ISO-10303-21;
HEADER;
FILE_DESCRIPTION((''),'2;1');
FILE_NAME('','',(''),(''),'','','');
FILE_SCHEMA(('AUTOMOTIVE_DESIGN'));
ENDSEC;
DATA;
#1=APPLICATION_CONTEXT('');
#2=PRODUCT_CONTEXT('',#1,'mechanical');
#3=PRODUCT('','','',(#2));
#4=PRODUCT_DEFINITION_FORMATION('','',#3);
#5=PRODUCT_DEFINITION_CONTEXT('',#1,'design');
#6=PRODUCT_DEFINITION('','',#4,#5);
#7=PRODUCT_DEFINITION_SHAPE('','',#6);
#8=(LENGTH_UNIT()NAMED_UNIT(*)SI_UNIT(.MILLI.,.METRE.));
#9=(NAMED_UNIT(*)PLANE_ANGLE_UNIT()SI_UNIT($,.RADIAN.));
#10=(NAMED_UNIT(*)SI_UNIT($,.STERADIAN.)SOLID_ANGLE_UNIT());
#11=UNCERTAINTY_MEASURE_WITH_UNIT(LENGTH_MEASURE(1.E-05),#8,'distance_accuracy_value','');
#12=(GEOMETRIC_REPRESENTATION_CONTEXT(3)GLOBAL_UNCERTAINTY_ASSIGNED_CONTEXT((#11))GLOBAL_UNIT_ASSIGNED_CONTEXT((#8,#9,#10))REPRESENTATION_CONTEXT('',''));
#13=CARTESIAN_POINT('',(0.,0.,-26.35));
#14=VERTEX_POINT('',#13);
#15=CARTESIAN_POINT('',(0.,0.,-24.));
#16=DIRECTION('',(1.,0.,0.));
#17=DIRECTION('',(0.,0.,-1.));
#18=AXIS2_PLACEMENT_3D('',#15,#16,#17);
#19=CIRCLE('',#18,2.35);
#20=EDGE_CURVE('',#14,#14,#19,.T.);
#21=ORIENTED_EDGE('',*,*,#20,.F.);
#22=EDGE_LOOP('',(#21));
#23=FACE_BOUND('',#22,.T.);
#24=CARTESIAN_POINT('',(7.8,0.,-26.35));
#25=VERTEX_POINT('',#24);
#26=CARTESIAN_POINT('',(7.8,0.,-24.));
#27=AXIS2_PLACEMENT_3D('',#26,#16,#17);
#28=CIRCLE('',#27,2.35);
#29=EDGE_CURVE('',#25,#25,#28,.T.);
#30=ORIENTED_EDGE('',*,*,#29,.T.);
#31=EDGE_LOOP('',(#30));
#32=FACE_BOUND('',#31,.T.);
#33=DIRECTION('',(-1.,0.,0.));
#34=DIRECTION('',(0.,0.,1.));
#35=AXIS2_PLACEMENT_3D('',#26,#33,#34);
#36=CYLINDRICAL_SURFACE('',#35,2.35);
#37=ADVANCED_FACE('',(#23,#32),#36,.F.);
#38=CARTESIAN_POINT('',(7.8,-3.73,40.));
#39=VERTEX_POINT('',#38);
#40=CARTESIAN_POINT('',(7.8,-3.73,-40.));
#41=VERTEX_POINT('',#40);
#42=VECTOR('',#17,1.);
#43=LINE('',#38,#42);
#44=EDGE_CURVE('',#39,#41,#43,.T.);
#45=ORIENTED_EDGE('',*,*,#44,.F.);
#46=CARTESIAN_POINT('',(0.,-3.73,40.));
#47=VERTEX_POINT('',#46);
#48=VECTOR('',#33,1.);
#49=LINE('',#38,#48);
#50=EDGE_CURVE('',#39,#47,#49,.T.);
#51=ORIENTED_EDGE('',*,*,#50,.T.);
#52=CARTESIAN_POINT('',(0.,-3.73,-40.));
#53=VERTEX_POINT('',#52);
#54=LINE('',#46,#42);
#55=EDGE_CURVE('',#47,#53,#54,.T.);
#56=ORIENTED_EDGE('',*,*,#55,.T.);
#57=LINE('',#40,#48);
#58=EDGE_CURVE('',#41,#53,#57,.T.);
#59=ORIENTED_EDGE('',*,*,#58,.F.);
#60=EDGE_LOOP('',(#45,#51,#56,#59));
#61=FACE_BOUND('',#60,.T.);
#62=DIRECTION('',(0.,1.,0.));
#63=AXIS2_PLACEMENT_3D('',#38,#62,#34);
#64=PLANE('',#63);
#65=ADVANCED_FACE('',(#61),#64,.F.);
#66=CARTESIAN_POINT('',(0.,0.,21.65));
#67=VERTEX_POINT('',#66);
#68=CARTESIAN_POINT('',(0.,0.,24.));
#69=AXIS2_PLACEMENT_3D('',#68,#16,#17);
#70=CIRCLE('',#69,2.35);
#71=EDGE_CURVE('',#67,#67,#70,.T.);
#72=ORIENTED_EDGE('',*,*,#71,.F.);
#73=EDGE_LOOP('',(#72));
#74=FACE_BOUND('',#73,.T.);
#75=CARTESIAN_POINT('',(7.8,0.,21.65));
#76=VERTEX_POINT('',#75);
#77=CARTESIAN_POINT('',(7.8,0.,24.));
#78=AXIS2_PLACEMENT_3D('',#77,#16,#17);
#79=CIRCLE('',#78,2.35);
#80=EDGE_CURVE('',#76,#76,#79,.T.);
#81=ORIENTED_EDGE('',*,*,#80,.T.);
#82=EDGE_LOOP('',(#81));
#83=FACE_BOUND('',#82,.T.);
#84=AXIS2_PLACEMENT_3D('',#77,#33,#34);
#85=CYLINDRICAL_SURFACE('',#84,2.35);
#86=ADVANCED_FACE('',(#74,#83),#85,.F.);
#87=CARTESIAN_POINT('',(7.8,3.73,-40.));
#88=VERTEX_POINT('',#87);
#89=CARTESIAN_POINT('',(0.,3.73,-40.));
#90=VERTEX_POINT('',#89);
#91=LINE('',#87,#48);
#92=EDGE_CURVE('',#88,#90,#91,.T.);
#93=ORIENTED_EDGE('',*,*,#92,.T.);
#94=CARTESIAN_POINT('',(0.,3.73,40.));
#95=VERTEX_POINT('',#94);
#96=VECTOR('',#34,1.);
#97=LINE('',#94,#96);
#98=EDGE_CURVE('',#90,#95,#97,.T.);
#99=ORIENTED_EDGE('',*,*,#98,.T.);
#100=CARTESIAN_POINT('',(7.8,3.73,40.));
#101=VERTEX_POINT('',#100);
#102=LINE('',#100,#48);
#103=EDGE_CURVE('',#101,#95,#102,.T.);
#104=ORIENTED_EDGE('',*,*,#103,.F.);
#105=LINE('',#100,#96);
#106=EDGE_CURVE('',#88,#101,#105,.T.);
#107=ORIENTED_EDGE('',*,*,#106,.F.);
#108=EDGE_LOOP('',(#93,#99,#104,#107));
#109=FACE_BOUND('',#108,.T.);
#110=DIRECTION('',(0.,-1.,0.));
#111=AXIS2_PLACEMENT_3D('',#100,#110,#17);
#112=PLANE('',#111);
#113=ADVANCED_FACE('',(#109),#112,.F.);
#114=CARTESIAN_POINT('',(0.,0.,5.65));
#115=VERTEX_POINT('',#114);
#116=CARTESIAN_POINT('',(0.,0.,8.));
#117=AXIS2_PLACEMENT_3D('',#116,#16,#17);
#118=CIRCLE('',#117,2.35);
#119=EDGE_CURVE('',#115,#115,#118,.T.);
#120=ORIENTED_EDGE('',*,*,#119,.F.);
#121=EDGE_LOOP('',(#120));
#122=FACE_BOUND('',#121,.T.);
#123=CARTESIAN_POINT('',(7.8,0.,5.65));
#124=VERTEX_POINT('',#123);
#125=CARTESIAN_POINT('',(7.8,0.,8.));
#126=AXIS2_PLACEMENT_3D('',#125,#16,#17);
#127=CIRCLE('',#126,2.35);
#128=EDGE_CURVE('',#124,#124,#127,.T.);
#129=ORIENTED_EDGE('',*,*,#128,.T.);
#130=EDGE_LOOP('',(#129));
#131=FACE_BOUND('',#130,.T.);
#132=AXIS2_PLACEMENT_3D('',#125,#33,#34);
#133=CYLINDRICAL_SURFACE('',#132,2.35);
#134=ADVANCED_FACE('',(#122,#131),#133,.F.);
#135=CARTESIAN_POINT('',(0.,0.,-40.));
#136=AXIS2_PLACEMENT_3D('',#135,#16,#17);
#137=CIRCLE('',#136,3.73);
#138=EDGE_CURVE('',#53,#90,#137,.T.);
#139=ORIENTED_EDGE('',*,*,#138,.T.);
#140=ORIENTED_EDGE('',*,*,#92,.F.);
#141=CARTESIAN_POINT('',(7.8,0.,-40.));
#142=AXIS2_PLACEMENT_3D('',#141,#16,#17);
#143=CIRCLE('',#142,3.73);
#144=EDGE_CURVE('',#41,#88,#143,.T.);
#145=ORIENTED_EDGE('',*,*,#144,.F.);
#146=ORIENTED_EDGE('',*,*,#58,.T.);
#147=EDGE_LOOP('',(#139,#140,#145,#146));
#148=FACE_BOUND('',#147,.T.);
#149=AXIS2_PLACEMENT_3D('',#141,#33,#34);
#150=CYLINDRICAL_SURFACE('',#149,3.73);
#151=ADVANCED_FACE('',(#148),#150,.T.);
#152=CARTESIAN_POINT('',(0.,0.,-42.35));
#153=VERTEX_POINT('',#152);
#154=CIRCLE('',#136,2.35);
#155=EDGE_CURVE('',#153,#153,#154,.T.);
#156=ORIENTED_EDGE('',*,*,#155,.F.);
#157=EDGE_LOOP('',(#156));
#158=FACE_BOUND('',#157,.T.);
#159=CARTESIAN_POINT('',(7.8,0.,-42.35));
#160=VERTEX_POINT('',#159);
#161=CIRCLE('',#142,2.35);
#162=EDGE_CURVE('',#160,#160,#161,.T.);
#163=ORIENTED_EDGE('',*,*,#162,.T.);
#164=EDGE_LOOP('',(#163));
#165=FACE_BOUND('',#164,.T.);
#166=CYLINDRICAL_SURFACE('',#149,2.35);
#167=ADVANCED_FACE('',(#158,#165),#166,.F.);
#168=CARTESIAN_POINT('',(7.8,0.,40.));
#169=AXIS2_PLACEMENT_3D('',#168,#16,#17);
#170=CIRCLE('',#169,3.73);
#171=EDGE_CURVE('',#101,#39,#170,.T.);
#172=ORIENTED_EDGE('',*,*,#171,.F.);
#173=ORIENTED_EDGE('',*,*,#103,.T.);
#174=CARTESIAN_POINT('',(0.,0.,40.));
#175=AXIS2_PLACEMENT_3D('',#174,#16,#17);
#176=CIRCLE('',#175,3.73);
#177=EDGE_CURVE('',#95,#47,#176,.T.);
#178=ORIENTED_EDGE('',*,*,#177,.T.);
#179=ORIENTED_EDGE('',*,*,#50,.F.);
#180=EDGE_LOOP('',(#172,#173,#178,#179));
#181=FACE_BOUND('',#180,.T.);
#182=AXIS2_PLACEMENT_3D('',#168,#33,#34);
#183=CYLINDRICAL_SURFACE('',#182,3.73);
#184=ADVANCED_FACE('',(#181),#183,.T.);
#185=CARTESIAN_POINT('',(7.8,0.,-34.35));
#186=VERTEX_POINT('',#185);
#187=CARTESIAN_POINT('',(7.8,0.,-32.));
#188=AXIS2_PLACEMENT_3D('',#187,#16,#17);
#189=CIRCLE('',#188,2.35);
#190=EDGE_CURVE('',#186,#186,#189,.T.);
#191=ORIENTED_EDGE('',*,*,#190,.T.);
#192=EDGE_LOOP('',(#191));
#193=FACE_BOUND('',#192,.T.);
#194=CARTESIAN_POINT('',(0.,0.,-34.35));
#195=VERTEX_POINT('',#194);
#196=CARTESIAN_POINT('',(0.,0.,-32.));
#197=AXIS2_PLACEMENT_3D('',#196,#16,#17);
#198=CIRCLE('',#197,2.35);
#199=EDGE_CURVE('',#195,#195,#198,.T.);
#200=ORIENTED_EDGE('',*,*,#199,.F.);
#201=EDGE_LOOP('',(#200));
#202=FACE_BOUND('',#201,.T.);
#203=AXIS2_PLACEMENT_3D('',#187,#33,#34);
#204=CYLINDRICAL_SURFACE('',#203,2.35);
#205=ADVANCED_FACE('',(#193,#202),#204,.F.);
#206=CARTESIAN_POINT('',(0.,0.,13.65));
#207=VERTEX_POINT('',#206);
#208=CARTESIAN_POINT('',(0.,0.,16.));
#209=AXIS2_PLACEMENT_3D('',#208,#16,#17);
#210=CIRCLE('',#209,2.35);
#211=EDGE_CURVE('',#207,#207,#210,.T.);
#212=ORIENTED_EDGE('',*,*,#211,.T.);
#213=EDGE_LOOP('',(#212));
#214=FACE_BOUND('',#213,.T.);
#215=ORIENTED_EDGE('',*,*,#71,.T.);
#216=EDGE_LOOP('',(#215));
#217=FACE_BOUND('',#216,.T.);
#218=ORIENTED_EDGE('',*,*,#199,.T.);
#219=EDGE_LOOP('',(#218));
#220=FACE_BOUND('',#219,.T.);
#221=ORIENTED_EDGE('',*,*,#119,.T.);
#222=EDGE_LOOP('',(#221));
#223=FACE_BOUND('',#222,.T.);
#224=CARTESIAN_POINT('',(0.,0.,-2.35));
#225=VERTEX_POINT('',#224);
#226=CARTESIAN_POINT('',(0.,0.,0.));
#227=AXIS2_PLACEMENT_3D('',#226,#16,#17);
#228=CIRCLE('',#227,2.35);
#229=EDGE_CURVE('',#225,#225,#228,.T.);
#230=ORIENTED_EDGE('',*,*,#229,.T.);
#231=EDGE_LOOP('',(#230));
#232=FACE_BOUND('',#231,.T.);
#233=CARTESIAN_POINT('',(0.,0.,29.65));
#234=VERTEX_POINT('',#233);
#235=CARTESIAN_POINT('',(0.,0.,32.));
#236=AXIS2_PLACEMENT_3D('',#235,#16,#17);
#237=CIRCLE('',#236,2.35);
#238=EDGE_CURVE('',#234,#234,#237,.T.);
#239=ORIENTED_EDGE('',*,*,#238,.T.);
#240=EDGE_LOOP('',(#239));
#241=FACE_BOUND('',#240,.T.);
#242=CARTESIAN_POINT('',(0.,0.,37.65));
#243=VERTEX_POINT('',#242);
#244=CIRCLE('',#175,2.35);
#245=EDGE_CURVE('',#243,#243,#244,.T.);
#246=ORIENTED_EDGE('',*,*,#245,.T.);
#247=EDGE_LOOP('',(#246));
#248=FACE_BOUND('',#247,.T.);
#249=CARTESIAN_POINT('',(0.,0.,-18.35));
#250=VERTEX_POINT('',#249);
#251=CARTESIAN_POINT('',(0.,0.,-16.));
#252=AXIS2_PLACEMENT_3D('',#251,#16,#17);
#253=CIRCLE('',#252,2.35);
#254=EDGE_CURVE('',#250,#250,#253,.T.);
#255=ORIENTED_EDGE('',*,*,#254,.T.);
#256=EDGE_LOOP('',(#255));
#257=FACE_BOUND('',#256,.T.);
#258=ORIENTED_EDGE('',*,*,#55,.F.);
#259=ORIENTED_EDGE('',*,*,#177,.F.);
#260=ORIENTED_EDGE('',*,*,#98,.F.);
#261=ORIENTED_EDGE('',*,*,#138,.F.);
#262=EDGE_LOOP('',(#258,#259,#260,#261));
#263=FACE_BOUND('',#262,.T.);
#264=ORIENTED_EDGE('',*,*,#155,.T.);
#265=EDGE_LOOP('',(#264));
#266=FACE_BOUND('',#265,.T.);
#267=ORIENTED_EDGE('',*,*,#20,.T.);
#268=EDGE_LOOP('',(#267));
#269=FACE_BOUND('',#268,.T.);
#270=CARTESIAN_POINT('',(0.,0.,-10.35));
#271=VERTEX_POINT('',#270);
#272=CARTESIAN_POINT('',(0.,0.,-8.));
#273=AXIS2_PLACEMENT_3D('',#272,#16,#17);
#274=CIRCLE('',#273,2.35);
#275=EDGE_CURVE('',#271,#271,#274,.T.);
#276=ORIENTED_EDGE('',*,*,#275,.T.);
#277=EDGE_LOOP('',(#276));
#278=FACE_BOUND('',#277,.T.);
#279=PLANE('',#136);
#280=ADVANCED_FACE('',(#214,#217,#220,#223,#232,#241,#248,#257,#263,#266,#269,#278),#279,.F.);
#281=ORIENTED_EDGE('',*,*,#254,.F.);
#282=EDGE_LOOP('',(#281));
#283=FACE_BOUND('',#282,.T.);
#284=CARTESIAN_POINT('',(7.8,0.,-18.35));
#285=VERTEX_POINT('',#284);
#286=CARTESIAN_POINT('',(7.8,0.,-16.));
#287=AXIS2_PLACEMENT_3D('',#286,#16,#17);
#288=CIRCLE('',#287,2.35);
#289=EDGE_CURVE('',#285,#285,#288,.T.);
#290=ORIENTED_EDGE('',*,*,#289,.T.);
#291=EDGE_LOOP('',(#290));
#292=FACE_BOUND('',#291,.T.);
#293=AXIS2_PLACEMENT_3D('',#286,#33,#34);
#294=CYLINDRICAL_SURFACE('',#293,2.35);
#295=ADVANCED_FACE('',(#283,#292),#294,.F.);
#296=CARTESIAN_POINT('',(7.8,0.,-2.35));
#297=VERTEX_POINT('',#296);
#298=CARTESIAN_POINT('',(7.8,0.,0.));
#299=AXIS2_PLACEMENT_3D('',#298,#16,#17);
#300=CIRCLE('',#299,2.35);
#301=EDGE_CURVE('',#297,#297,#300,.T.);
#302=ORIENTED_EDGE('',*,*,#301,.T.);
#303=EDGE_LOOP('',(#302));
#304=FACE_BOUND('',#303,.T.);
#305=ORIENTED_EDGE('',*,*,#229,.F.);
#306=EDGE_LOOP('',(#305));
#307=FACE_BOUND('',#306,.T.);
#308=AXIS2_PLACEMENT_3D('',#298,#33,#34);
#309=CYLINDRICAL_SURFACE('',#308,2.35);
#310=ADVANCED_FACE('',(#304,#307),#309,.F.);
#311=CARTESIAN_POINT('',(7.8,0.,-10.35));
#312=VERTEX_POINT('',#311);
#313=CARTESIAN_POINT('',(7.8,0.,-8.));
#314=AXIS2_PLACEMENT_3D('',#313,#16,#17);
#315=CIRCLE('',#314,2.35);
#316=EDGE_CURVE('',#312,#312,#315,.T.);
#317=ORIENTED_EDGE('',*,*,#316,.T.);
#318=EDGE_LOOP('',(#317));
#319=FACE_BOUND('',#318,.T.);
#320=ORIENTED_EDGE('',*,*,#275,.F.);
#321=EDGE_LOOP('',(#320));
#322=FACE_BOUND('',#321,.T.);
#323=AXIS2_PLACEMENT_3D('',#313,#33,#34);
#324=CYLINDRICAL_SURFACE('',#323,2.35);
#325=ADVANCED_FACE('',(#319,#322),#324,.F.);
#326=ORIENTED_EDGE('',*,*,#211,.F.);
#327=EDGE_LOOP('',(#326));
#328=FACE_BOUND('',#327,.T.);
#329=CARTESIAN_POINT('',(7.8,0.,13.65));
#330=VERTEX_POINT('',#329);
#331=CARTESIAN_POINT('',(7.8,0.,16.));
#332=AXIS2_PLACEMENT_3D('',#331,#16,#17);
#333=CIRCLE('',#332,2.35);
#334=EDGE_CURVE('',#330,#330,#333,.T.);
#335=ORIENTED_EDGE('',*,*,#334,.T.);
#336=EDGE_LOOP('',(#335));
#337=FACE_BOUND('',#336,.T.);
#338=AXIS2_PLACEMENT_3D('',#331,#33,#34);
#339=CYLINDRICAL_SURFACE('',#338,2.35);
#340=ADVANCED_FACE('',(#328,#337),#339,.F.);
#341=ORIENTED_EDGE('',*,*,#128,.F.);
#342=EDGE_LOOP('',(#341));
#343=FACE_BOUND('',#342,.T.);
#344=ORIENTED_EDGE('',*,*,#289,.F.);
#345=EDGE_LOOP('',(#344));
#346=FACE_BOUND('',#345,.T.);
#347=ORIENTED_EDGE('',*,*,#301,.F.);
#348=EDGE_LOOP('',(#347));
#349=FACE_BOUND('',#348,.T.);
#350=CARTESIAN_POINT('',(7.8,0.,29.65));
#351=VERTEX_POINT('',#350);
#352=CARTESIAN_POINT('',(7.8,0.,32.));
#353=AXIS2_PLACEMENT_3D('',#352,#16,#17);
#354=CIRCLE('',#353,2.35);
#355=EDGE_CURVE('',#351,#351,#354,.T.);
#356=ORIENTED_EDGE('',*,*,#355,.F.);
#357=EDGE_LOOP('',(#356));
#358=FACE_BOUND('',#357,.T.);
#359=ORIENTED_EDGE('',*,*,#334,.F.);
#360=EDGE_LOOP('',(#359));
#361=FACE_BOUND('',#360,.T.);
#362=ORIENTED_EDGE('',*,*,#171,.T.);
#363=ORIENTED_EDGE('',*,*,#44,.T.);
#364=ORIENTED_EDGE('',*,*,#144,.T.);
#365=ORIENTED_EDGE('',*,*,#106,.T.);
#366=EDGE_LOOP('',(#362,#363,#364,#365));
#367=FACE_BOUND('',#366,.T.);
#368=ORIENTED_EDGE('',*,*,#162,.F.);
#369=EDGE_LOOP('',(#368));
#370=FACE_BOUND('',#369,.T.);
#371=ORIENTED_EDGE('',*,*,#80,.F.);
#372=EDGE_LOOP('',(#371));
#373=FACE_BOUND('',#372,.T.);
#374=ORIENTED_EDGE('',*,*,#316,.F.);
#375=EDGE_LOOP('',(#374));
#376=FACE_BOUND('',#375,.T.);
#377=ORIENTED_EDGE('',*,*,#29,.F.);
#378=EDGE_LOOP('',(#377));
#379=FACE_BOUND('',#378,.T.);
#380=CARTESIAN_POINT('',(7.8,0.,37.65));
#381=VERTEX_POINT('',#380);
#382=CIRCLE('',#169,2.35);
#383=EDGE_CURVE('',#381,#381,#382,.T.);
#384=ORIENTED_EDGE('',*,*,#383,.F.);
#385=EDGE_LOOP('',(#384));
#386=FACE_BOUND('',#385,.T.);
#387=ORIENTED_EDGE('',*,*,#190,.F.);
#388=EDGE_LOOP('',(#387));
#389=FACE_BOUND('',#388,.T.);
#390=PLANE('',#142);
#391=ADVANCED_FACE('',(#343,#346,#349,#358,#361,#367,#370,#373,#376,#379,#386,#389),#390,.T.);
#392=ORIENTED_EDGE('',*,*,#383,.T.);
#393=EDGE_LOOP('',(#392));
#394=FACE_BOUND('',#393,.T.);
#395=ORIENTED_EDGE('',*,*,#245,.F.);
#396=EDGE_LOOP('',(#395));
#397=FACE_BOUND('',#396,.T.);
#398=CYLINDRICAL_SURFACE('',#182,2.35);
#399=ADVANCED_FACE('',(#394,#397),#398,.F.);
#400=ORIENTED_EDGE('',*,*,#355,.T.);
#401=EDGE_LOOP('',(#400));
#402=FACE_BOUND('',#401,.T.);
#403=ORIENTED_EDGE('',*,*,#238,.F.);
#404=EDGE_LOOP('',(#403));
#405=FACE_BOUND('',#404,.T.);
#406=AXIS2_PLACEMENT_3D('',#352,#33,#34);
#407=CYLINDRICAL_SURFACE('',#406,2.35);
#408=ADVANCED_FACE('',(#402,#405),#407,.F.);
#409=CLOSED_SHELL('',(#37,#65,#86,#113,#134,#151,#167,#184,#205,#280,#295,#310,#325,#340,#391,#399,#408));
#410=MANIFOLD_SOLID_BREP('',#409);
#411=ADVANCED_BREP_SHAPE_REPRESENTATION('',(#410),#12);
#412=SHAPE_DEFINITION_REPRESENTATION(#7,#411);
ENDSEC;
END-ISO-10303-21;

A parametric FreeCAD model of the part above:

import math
import FreeCAD as App
import Part
import Sketcher
from FreeCAD import Vector

doc = App.newDocument("Part")
body = doc.addObject("PartDesign::Body", "Body")

# Sketch on YZ plane
sketch1 = body.newObject("Sketcher::SketchObject", "Sketch")
sketch1.AttachmentSupport = (doc.getObject("YZ_Plane"), [""])
sketch1.MapMode = "FlatFace"
sketch1.addGeometry([
    Part.LineSegment(Vector(-3.73, 40, 0), Vector(-3.73, -40, 0)),  # 0
    Part.ArcOfCircle(Part.Circle(Vector(0, -40, 0), Vector(0, 0, 1), 3.73), math.radians(180), math.radians(360)),  # 1
    Part.LineSegment(Vector(3.73, -40, 0), Vector(3.73, 40, 0)),  # 2
    Part.ArcOfCircle(Part.Circle(Vector(0, 40, 0), Vector(0, 0, 1), 3.73), math.radians(0), math.radians(180)),  # 3
    Part.Circle(Vector(0, 40, 0), Vector(0, 0, 1), 2.35),  # 4
    Part.Circle(Vector(0, 32, 0), Vector(0, 0, 1), 2.35),  # 5
    Part.Circle(Vector(0, 24, 0), Vector(0, 0, 1), 2.35),  # 6
    Part.Circle(Vector(0, 16, 0), Vector(0, 0, 1), 2.35),  # 7
    Part.Circle(Vector(0, 8, 0), Vector(0, 0, 1), 2.35),  # 8
    Part.Circle(Vector(0, 0, 0), Vector(0, 0, 1), 2.35),  # 9
    Part.Circle(Vector(0, -8, 0), Vector(0, 0, 1), 2.35),  # 10
    Part.Circle(Vector(0, -16, 0), Vector(0, 0, 1), 2.35),  # 11
    Part.Circle(Vector(0, -24, 0), Vector(0, 0, 1), 2.35),  # 12
    Part.Circle(Vector(0, -32, 0), Vector(0, 0, 1), 2.35),  # 13
    Part.Circle(Vector(0, -40, 0), Vector(0, 0, 1), 2.35),  # 14
], False)
sketch1.addConstraint([
    Sketcher.Constraint("Tangent", 0, 2, 1, 1),
    Sketcher.Constraint("Tangent", 1, 2, 2, 1),
    Sketcher.Constraint("Tangent", 2, 2, 3, 1),
    Sketcher.Constraint("Tangent", 3, 2, 0, 1),
    Sketcher.Constraint("Vertical", 0),
    Sketcher.Constraint("Vertical", 2),
    Sketcher.Constraint("Coincident", 9, 3, -1, 1),
    Sketcher.Constraint("Coincident", 4, 3, 3, 3),
    Sketcher.Constraint("Coincident", 14, 3, 1, 3),
    Sketcher.Constraint("Equal", 4, 5),
    Sketcher.Constraint("Equal", 5, 6),
    Sketcher.Constraint("Equal", 6, 7),
    Sketcher.Constraint("Equal", 7, 8),
    Sketcher.Constraint("Equal", 8, 9),
    Sketcher.Constraint("Equal", 9, 10),
    Sketcher.Constraint("Equal", 10, 11),
    Sketcher.Constraint("Equal", 11, 12),
    Sketcher.Constraint("Equal", 12, 13),
    Sketcher.Constraint("Equal", 13, 14),
    Sketcher.Constraint("Symmetric", 1, 3, 3, 3, -1, 1),
    Sketcher.Constraint("Symmetric", 8, 3, 10, 3, -1, 1),
    Sketcher.Constraint("Symmetric", 7, 3, 11, 3, -1, 1),
    Sketcher.Constraint("Symmetric", 6, 3, 12, 3, -1, 1),
    Sketcher.Constraint("Symmetric", 5, 3, 13, 3, -1, 1),
    Sketcher.Constraint("PointOnObject", 5, 3, -2),
    Sketcher.Constraint("PointOnObject", 6, 3, -2),
    Sketcher.Constraint("PointOnObject", 7, 3, -2),
    Sketcher.Constraint("PointOnObject", 8, 3, -2),
    Sketcher.Constraint("Diameter", 4, 4.7),
    Sketcher.Constraint("DistanceY", 0, 2, 0, 1, 80.0),
    Sketcher.Constraint("Radius", 1, 3.73),
    Sketcher.Constraint("DistanceY", -1, 1, 5, 3, 32.0),
    Sketcher.Constraint("DistanceY", -1, 1, 6, 3, 24.0),
    Sketcher.Constraint("DistanceY", -1, 1, 7, 3, 16.0),
    Sketcher.Constraint("DistanceY", -1, 1, 8, 3, 8.0),
])
pad1 = body.newObject("PartDesign::Pad", "Pad")
pad1.Profile = sketch1
pad1.Length = 7.8

doc.recompute()
